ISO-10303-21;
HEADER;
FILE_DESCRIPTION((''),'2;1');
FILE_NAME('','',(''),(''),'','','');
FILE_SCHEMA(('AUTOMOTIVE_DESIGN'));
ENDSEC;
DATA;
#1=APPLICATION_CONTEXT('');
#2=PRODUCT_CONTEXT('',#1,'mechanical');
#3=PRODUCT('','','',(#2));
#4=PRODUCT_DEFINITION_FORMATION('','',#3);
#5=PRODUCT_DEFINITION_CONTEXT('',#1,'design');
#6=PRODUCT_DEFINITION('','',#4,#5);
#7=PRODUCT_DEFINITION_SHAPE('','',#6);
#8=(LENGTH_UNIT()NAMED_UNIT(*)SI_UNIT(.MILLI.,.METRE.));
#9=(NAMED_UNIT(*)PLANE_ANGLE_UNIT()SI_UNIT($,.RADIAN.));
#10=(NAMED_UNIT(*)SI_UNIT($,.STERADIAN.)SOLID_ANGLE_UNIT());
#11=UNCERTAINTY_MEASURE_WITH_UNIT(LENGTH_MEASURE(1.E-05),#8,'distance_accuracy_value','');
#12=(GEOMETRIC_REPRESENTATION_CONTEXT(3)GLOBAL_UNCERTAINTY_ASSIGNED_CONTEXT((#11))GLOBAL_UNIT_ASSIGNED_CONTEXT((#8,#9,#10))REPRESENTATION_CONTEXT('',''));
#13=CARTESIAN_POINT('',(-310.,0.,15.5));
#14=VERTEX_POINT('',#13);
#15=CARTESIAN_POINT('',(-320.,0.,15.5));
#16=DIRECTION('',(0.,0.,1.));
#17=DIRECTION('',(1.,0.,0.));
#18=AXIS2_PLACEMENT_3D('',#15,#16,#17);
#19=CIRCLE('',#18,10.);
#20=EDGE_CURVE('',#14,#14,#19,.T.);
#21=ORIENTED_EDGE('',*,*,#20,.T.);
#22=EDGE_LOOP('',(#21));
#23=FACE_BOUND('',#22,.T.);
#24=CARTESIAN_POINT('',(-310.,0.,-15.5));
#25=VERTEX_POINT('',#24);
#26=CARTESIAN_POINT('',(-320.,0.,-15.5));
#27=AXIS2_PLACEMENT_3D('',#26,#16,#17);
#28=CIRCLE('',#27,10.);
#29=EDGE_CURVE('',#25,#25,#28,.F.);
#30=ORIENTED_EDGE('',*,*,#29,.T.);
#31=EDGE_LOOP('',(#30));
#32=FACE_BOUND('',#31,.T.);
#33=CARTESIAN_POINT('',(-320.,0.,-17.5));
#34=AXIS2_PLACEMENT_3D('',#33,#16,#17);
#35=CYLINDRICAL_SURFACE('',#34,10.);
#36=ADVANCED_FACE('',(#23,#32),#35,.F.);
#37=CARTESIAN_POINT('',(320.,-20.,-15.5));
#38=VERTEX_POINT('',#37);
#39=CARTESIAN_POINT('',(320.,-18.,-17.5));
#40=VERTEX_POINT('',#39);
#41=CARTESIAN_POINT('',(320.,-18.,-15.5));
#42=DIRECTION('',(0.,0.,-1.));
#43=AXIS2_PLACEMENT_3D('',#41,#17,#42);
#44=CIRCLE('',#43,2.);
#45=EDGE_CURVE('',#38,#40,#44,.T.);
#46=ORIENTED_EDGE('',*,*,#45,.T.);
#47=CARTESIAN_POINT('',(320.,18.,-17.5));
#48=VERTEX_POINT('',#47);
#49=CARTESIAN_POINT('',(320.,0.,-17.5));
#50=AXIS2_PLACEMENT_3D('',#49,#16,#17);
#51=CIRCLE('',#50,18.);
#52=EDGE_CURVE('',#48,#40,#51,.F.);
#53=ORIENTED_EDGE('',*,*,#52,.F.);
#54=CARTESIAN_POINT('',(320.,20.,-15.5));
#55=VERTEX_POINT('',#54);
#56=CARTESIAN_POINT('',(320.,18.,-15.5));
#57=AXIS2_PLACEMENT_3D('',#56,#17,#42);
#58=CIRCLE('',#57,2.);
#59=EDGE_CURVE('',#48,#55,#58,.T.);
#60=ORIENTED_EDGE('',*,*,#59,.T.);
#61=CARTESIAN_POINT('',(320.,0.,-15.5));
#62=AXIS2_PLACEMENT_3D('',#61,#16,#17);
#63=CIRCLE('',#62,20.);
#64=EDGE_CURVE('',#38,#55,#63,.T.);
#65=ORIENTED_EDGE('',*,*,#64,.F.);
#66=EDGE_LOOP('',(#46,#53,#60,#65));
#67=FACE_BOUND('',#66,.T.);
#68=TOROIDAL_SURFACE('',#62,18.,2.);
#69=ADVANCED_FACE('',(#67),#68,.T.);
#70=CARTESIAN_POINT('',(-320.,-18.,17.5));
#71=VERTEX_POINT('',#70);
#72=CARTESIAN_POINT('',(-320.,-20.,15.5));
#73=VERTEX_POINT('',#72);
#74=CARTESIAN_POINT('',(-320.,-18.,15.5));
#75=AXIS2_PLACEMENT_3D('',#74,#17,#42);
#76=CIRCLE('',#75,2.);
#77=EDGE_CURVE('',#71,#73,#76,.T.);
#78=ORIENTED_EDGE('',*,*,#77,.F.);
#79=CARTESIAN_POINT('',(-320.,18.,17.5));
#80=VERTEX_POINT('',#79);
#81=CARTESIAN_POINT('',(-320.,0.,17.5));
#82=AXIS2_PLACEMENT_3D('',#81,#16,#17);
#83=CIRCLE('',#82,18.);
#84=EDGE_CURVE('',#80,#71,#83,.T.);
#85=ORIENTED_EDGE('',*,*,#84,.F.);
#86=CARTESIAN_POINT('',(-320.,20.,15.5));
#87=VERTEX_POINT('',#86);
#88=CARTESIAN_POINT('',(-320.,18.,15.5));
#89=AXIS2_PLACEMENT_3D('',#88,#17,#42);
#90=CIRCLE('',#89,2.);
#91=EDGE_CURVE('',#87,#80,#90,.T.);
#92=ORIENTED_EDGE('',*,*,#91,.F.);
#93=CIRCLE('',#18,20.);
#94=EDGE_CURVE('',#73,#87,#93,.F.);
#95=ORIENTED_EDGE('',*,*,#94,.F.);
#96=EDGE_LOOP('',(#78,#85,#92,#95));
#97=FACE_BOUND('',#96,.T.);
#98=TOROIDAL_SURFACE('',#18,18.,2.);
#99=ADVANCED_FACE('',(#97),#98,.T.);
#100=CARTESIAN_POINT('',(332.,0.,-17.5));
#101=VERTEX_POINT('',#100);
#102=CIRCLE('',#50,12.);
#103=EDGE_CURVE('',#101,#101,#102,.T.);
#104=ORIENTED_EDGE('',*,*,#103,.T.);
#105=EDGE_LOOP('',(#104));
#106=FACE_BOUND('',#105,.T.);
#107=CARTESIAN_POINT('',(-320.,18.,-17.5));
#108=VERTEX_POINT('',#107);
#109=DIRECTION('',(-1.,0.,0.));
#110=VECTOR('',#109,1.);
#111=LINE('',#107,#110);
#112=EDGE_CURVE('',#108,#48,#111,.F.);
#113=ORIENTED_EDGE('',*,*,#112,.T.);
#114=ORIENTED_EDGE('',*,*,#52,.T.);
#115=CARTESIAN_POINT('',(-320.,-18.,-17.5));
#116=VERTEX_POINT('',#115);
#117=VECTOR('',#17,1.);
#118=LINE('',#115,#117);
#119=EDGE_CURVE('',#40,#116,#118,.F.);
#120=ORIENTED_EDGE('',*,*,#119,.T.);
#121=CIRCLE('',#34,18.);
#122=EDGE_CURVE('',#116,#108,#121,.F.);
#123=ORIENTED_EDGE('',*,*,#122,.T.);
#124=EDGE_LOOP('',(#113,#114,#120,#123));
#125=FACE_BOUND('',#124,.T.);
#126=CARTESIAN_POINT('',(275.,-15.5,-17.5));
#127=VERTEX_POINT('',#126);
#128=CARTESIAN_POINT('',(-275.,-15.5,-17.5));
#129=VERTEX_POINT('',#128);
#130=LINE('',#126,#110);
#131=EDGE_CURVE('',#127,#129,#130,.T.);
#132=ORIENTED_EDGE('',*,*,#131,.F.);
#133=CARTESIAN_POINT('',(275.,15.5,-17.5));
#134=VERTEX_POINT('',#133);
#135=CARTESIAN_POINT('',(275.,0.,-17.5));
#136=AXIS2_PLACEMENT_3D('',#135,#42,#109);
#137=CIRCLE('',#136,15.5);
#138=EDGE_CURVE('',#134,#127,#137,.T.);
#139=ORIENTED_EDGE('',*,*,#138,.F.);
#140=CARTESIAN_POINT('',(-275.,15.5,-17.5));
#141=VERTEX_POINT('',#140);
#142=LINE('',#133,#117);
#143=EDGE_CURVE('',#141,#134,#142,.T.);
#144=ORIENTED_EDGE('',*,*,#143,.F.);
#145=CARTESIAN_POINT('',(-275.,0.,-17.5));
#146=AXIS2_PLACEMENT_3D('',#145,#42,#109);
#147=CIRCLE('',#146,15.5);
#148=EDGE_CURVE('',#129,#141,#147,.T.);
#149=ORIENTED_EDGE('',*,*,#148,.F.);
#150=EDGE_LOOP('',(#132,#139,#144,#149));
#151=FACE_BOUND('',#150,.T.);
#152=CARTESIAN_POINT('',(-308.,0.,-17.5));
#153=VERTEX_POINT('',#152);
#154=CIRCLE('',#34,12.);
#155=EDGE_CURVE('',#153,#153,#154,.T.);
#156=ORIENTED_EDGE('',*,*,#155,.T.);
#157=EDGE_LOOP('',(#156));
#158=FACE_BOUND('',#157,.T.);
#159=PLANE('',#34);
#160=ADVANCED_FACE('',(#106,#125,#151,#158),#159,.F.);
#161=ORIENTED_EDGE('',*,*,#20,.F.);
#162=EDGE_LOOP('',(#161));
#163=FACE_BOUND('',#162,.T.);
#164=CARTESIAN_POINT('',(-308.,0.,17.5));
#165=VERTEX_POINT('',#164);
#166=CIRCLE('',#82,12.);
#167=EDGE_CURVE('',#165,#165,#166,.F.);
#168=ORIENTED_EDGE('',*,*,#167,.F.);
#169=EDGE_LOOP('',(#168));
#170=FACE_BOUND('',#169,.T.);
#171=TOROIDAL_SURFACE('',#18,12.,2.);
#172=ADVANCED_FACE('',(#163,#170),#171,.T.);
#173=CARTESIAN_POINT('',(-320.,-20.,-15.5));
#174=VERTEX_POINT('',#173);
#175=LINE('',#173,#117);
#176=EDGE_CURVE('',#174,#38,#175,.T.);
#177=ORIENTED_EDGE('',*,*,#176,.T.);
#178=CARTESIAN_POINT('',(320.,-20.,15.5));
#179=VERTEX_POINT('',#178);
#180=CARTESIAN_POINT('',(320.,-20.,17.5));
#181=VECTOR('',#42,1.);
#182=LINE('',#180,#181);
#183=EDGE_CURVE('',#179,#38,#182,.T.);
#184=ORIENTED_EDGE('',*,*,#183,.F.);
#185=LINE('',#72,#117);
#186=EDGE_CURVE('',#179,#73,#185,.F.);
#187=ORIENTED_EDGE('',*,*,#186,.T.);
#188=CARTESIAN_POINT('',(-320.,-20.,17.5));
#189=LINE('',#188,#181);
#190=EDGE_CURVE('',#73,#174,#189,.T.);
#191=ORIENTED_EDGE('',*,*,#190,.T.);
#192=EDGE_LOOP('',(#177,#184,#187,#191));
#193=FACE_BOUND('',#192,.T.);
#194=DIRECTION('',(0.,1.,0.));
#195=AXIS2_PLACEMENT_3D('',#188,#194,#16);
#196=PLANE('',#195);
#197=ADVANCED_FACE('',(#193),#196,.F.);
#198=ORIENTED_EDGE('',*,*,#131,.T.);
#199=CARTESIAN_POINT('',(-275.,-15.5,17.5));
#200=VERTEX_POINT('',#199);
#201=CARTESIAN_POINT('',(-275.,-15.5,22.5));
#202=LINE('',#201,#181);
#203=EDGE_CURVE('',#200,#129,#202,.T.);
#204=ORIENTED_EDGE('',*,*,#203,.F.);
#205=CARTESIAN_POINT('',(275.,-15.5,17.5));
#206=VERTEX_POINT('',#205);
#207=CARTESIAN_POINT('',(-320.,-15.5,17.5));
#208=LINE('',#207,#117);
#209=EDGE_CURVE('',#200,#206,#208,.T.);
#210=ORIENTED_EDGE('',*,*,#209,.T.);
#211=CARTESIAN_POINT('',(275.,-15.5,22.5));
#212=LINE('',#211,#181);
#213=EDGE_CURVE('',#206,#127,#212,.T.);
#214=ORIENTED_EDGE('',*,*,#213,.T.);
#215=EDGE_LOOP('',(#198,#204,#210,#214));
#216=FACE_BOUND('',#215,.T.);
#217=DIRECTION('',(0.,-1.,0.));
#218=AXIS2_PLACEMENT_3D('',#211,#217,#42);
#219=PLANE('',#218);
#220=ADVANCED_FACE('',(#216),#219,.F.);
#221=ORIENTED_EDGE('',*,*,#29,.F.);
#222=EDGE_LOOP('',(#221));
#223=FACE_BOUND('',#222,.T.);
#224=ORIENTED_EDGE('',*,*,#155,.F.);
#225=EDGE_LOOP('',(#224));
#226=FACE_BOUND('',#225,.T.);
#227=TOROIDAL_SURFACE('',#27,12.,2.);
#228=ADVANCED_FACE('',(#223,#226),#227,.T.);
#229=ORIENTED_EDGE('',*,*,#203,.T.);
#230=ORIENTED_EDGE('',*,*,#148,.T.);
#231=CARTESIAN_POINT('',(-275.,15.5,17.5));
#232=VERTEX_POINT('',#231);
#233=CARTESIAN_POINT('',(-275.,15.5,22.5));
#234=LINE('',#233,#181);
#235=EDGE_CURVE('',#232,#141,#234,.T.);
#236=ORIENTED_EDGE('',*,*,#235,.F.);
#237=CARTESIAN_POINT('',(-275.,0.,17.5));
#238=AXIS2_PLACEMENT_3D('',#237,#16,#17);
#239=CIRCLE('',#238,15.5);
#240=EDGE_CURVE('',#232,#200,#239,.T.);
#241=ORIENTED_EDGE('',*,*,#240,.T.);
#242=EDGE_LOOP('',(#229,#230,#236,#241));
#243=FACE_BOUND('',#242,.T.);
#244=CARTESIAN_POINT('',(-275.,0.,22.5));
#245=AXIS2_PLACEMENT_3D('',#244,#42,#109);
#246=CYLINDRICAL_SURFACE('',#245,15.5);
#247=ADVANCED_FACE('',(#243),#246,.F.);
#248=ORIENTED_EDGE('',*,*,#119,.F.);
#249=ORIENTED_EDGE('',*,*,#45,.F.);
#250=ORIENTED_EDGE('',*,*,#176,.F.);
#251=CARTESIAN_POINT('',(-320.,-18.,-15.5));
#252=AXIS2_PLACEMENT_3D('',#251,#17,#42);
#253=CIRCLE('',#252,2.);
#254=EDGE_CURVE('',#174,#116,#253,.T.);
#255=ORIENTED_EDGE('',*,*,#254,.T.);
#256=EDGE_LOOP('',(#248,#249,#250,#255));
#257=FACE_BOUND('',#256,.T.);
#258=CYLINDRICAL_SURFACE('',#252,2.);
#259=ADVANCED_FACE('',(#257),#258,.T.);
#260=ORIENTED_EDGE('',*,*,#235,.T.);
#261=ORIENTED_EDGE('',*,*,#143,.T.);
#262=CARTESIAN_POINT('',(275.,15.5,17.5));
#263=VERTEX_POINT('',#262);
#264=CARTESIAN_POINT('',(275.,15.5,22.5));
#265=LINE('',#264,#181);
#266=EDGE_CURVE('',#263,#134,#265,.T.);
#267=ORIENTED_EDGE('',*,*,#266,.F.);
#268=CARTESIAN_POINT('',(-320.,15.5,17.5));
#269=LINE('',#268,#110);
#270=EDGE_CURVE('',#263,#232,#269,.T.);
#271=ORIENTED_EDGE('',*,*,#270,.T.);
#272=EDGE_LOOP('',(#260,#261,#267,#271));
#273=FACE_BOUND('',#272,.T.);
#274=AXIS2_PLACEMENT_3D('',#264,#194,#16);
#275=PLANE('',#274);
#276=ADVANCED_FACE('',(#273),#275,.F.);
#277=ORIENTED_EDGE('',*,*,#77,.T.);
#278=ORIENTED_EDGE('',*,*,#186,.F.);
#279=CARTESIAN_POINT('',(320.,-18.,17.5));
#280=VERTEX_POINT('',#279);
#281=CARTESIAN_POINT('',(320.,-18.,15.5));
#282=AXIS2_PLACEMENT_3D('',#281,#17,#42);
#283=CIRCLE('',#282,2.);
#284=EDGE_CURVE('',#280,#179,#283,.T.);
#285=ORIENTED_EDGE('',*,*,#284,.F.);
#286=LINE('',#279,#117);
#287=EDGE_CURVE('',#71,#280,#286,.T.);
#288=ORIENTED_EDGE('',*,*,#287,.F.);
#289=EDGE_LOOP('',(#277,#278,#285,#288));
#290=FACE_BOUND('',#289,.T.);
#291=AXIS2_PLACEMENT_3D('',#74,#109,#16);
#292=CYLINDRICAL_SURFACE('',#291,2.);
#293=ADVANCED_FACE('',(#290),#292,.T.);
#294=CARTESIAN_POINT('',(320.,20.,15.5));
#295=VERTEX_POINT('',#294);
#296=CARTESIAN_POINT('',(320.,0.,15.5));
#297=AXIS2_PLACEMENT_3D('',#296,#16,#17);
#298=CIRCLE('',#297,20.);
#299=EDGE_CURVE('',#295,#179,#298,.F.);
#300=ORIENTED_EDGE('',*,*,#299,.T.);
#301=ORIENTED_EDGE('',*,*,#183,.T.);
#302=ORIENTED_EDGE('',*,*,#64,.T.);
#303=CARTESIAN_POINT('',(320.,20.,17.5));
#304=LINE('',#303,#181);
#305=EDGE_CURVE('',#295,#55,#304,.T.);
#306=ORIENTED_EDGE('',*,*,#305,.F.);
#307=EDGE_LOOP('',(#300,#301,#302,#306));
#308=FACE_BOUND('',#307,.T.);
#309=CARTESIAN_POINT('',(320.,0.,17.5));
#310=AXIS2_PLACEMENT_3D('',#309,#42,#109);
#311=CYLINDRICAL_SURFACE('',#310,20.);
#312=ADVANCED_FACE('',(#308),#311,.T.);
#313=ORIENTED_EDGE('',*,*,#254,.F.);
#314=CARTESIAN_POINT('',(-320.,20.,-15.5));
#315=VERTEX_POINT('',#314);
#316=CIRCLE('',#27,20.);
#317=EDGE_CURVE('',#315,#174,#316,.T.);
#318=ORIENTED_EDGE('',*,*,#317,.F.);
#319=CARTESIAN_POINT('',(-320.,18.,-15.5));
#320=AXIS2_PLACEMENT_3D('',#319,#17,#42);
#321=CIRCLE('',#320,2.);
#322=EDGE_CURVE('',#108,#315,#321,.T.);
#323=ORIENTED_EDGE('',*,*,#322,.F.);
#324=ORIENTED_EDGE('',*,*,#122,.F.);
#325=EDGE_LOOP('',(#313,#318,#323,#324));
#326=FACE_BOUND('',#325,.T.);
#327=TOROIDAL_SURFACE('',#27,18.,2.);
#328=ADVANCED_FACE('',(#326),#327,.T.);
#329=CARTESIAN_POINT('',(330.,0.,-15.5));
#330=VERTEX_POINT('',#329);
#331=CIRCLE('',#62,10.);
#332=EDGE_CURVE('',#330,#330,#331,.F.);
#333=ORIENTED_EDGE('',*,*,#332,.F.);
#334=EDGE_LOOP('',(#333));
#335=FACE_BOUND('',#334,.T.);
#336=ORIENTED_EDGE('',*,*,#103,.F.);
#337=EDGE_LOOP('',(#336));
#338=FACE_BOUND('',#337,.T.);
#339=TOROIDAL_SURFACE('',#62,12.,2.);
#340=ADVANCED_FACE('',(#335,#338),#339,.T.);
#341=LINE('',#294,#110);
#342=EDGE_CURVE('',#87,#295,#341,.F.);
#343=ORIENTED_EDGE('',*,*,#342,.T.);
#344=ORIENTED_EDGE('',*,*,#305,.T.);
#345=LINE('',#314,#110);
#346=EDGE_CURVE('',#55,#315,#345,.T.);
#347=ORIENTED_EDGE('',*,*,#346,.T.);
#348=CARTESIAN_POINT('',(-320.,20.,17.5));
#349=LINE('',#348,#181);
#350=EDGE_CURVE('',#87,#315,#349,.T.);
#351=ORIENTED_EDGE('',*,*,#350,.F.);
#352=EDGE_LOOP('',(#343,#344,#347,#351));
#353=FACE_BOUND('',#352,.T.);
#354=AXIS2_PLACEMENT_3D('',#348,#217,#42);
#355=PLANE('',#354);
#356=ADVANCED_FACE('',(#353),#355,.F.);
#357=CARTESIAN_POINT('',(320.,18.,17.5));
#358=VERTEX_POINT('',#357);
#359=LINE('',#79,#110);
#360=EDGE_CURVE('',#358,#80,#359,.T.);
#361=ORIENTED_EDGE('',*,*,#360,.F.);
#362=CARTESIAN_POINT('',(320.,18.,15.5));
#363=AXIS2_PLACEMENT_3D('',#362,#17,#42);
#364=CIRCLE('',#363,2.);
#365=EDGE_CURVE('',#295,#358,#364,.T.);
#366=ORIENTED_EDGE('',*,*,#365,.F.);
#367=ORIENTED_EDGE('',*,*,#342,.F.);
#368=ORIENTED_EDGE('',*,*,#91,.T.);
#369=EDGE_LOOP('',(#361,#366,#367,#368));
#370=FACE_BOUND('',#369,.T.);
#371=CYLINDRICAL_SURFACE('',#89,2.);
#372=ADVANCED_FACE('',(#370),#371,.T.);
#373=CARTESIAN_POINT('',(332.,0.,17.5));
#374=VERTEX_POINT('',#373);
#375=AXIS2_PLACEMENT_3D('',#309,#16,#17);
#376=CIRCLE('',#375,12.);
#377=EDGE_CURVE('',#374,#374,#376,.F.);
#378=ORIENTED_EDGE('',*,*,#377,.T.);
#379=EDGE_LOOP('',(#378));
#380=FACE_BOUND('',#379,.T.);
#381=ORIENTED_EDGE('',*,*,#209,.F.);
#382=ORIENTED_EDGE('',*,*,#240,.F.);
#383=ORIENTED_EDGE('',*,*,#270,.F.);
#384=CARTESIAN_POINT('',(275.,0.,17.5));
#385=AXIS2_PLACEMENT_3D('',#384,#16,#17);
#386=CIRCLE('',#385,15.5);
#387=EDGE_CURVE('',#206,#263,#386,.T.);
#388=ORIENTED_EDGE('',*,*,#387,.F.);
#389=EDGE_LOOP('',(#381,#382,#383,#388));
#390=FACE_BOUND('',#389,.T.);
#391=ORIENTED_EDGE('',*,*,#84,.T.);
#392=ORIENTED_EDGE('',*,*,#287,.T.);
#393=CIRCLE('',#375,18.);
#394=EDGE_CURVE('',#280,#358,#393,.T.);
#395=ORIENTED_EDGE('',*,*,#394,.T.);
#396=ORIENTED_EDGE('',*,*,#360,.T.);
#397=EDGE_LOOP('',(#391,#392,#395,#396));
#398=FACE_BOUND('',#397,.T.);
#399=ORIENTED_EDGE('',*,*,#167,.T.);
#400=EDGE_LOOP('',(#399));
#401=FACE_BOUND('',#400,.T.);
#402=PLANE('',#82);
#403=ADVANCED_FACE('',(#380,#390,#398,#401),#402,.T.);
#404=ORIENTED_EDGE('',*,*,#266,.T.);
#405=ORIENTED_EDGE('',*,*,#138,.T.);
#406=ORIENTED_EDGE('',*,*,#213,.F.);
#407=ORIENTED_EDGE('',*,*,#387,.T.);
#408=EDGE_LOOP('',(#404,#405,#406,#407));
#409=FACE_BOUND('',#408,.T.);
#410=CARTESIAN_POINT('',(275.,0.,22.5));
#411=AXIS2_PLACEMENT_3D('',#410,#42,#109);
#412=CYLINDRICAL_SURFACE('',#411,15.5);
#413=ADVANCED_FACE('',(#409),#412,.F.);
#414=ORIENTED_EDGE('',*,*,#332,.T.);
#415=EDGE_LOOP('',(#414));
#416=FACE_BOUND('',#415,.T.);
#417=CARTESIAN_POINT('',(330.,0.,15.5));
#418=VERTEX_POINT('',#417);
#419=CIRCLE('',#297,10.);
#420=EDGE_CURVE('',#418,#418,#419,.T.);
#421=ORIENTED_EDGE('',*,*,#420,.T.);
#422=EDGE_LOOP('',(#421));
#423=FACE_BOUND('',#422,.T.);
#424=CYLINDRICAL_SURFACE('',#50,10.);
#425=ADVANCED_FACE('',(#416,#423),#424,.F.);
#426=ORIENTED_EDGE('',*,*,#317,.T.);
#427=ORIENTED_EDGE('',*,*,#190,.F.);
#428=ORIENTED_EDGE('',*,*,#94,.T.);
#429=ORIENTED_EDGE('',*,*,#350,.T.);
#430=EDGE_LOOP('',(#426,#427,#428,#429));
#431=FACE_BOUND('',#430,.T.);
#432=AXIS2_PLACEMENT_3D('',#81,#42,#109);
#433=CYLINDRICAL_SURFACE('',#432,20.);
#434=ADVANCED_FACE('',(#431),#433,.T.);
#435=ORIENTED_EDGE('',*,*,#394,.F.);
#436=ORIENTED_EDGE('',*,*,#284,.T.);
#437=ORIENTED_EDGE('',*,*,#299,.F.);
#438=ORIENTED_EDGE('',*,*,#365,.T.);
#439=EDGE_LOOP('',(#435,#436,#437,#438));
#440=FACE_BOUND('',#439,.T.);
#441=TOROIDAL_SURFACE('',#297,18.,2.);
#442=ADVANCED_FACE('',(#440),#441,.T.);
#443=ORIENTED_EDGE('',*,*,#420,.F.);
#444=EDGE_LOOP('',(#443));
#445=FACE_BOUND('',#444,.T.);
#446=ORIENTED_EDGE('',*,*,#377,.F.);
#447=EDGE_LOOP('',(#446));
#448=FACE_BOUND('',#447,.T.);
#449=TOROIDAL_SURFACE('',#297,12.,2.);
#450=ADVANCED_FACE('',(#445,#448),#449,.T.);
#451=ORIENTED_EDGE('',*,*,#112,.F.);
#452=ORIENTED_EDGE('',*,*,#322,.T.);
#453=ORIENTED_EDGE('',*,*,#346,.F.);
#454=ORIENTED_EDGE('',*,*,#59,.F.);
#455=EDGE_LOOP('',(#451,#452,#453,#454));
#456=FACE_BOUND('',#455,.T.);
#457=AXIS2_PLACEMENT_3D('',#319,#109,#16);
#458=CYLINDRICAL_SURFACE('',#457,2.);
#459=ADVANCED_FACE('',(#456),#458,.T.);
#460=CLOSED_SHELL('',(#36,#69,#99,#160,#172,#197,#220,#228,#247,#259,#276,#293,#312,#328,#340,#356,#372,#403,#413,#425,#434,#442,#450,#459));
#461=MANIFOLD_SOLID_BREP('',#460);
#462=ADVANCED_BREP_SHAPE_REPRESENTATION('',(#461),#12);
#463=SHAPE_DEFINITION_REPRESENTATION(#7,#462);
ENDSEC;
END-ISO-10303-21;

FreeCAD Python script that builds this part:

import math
import FreeCAD as App
import Part
import Sketcher
from FreeCAD import Vector
Q = App.Units.Quantity


def edges_at(feature, points):
    """Names of the edges that pass closest to the given points."""
    edges = feature.Shape.Edges
    near = lambda p: min(range(len(edges)), key=lambda i: edges[i].distToShape(Part.Vertex(*p))[0])
    return sorted({f"Edge{near(p) + 1}" for p in points})

doc = App.newDocument("Part")
body = doc.addObject("PartDesign::Body", "Body")

sketch1 = body.newObject("Sketcher::SketchObject", "Sketch")
sketch1.AttachmentSupport = (doc.getObject("XY_Plane"), [""])
sketch1.MapMode = "FlatFace"
sketch1.addGeometry([
    Part.LineSegment(Vector(320, 20, 0), Vector(-320, 20, 0)),
    Part.ArcOfCircle(Part.Circle(Vector(-320, 0, 0), Vector(0, 0, 1), 20), math.radians(90), math.radians(270)),
    Part.LineSegment(Vector(-320, -20, 0), Vector(320, -20, 0)),
    Part.ArcOfCircle(Part.Circle(Vector(320, 0, 0), Vector(0, 0, 1), 20), math.radians(-90), math.radians(90)),
], False)
sketch1.addConstraint([
    Sketcher.Constraint("Tangent", 0, 2, 1, 1),
    Sketcher.Constraint("Tangent", 1, 2, 2, 1),
    Sketcher.Constraint("Tangent", 2, 2, 3, 1),
    Sketcher.Constraint("Tangent", 3, 2, 0, 1),
    Sketcher.Constraint("Horizontal", 0),
    Sketcher.Constraint("Horizontal", 2),
    Sketcher.Constraint("Symmetric", 1, 3, 3, 3, -1, 1),
    Sketcher.Constraint("Radius", 1, Q("20 mm")),
    Sketcher.Constraint("DistanceX", 0, 2, 0, 1, Q("640 mm")),
])
pad1 = body.newObject("PartDesign::Pad", "Pad")
pad1.Profile = sketch1
pad1.Length = 35
pad1.Midplane = True

sketch2 = body.newObject("Sketcher::SketchObject", "Sketch001")
sketch2.AttachmentSupport = (doc.getObject("XY_Plane"), [""])
sketch2.MapMode = "FlatFace"
sketch2.AttachmentOffset = App.Placement(Vector(0, 0, 17.5), App.Rotation())
sketch2.addGeometry([
    Part.Circle(Vector(320, 0, 0), Vector(0, 0, 1), 10),
    Part.Circle(Vector(-320, 0, 0), Vector(0, 0, 1), 10),
], False)
sketch2.addConstraint([
    Sketcher.Constraint("Equal", 0, 1),
    Sketcher.Constraint("Symmetric", 0, 3, 1, 3, -1, 1),
    Sketcher.Constraint("PointOnObject", 0, 3, -1),
    Sketcher.Constraint("Diameter", 0, Q("20 mm")),
    Sketcher.Constraint("DistanceX", -1, 1, 0, 3, Q("320 mm")),
])
pocket1 = body.newObject("PartDesign::Pocket", "Pocket")
pocket1.Profile = sketch2
pocket1.Type = "ThroughAll"

sketch3 = body.newObject("Sketcher::SketchObject", "Sketch002")
sketch3.AttachmentSupport = (doc.getObject("XY_Plane"), [""])
sketch3.MapMode = "FlatFace"
sketch3.AttachmentOffset = App.Placement(Vector(0, 0, -17.5), App.Rotation())
sketch3.addGeometry([
    Part.LineSegment(Vector(-275, 15.5, 0), Vector(275, 15.5, 0)),
    Part.ArcOfCircle(Part.Circle(Vector(275, 0, 0), Vector(0, 0, 1), 15.5), math.radians(-90), math.radians(90)),
    Part.LineSegment(Vector(275, -15.5, 0), Vector(-275, -15.5, 0)),
    Part.ArcOfCircle(Part.Circle(Vector(-275, 0, 0), Vector(0, 0, 1), 15.5), math.radians(90), math.radians(270)),
], False)
sketch3.addConstraint([
    Sketcher.Constraint("Tangent", 0, 2, 1, 2),
    Sketcher.Constraint("Tangent", 1, 1, 2, 1),
    Sketcher.Constraint("Tangent", 2, 2, 3, 2),
    Sketcher.Constraint("Tangent", 3, 1, 0, 1),
    Sketcher.Constraint("Horizontal", 0),
    Sketcher.Constraint("Horizontal", 2),
    Sketcher.Constraint("Symmetric", 1, 3, 3, 3, -1, 1),
    Sketcher.Constraint("Radius", 1, Q("15.5 mm")),
    Sketcher.Constraint("DistanceX", 0, 1, 0, 2, Q("550 mm")),
])
pocket2 = body.newObject("PartDesign::Pocket", "Pocket001")
pocket2.Profile = sketch3
pocket2.Length = 40
pocket2.Reversed = True
doc.recompute()

fillet = body.newObject("PartDesign::Fillet", "Fillet")
fillet.Base = (pocket2, edges_at(pocket2, [
    (340, 0, 17.5),
    (310, 0, -17.5),
    (310, 0, 17.5),
    (0, 20, 17.5),
    (-330, 0, -17.5),
    (-330, 0, 17.5),
    (-340, 0, 17.5),
    (0, 20, -17.5),
    (340, 0, -17.5),
    (0, -20, -17.5),
    (-340, 0, -17.5),
    (0, -20, 17.5),
]))
fillet.Radius = 2

doc.recompute()
